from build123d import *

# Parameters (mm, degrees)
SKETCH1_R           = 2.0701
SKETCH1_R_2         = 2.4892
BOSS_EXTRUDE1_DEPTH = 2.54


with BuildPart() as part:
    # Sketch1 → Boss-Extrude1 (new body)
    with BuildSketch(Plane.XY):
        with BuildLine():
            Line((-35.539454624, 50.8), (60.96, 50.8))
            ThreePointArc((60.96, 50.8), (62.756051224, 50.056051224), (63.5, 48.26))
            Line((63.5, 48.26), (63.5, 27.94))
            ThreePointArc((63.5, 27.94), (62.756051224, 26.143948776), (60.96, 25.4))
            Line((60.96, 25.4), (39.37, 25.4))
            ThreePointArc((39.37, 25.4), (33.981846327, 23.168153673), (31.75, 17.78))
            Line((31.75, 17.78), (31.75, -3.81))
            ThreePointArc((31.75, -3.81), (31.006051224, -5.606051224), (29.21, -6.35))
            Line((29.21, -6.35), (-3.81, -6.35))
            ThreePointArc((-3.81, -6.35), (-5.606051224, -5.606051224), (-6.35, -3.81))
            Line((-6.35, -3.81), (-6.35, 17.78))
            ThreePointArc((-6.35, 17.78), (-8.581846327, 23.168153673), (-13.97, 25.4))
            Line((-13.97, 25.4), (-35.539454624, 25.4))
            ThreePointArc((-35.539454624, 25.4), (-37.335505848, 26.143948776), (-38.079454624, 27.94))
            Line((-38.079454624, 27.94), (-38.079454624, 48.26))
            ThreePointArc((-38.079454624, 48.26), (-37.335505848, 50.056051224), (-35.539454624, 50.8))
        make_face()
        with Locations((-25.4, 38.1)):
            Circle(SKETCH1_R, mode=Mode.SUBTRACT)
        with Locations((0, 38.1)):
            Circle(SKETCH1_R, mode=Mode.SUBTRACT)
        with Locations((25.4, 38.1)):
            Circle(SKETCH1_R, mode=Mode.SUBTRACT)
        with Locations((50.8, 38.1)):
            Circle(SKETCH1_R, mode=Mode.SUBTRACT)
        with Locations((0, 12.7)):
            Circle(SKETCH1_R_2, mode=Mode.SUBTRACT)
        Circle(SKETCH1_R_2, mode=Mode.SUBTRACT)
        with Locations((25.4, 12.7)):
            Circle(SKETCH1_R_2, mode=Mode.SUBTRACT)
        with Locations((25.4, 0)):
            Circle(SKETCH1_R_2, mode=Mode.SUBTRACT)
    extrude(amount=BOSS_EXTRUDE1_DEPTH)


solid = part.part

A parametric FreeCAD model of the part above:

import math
import FreeCAD as App
import Part
import Sketcher

V = App.Vector
Q = App.Units.Quantity

doc = App.newDocument("Part")
body = doc.addObject("PartDesign::Body", "Body")

sketch1 = doc.addObject("Sketcher::SketchObject", "Sketch")
body.addObject(sketch1)
sketch1.AttachmentSupport = (doc.XY_Plane, [""])
sketch1.MapMode = "FlatFace"
sketch1.addGeometry(Part.LineSegment(V(60.96, 50.8, 0), V(-35.539455, 50.8, 0)), False)
sketch1.addGeometry(Part.ArcOfCircle(Part.Circle(V(-35.539455, 48.26, 0), V(0, 0, 1), 2.54), math.radians(90), math.radians(180)), False)
sketch1.addGeometry(Part.LineSegment(V(-38.079455, 48.26, 0), V(-38.079455, 27.94, 0)), False)
sketch1.addGeometry(Part.ArcOfCircle(Part.Circle(V(-35.539455, 27.94, 0), V(0, 0, 1), 2.54), math.radians(-180), math.radians(-90)), False)
sketch1.addGeometry(Part.LineSegment(V(-35.539455, 25.4, 0), V(-13.97, 25.4, 0)), False)
sketch1.addGeometry(Part.ArcOfCircle(Part.Circle(V(-13.97, 17.78, 0), V(0, 0, 1), 7.62), math.radians(0), math.radians(90)), False)
sketch1.addGeometry(Part.LineSegment(V(-6.35, 17.78, 0), V(-6.35, -3.81, 0)), False)
sketch1.addGeometry(Part.ArcOfCircle(Part.Circle(V(-3.81, -3.81, 0), V(0, 0, 1), 2.54), math.radians(-180), math.radians(-90)), False)
sketch1.addGeometry(Part.LineSegment(V(-3.81, -6.35, 0), V(29.21, -6.35, 0)), False)
sketch1.addGeometry(Part.ArcOfCircle(Part.Circle(V(29.21, -3.81, 0), V(0, 0, 1), 2.54), math.radians(-90), math.radians(0)), False)
sketch1.addGeometry(Part.LineSegment(V(31.75, -3.81, 0), V(31.75, 17.78, 0)), False)
sketch1.addGeometry(Part.ArcOfCircle(Part.Circle(V(39.37, 17.78, 0), V(0, 0, 1), 7.62), math.radians(90), math.radians(180)), False)
sketch1.addGeometry(Part.LineSegment(V(39.37, 25.4, 0), V(60.96, 25.4, 0)), False)
sketch1.addGeometry(Part.ArcOfCircle(Part.Circle(V(60.96, 27.94, 0), V(0, 0, 1), 2.54), math.radians(-90), math.radians(0)), False)
sketch1.addGeometry(Part.LineSegment(V(63.5, 27.94, 0), V(63.5, 48.26, 0)), False)
sketch1.addGeometry(Part.ArcOfCircle(Part.Circle(V(60.96, 48.26, 0), V(0, 0, 1), 2.54), math.radians(0), math.radians(90)), False)
sketch1.addGeometry(Part.Circle(V(25.4, 0, 0), V(0, 0, 1), 2.4892), False)
sketch1.addGeometry(Part.Circle(V(25.4, 12.7, 0), V(0, 0, 1), 2.4892), False)
sketch1.addGeometry(Part.Circle(V(0, 0, 0), V(0, 0, 1), 2.4892), False)
sketch1.addGeometry(Part.Circle(V(0, 12.7, 0), V(0, 0, 1), 2.4892), False)
sketch1.addGeometry(Part.Circle(V(50.8, 38.1, 0), V(0, 0, 1), 2.0701), False)
sketch1.addGeometry(Part.Circle(V(25.4, 38.1, 0), V(0, 0, 1), 2.0701), False)
sketch1.addGeometry(Part.Circle(V(0, 38.1, 0), V(0, 0, 1), 2.0701), False)
sketch1.addGeometry(Part.Circle(V(-25.4, 38.1, 0), V(0, 0, 1), 2.0701), False)
sketch1.addConstraint(Sketcher.Constraint("Tangent", 0, 2, 1, 1))
sketch1.addConstraint(Sketcher.Constraint("Tangent", 1, 2, 2, 1))
sketch1.addConstraint(Sketcher.Constraint("Tangent", 2, 2, 3, 1))
sketch1.addConstraint(Sketcher.Constraint("Tangent", 3, 2, 4, 1))
sketch1.addConstraint(Sketcher.Constraint("Tangent", 4, 2, 5, 2))
sketch1.addConstraint(Sketcher.Constraint("Tangent", 5, 1, 6, 1))
sketch1.addConstraint(Sketcher.Constraint("Tangent", 6, 2, 7, 1))
sketch1.addConstraint(Sketcher.Constraint("Tangent", 7, 2, 8, 1))
sketch1.addConstraint(Sketcher.Constraint("Tangent", 8, 2, 9, 1))
sketch1.addConstraint(Sketcher.Constraint("Tangent", 9, 2, 10, 1))
sketch1.addConstraint(Sketcher.Constraint("Tangent", 10, 2, 11, 2))
sketch1.addConstraint(Sketcher.Constraint("Tangent", 11, 1, 12, 1))
sketch1.addConstraint(Sketcher.Constraint("Tangent", 12, 2, 13, 1))
sketch1.addConstraint(Sketcher.Constraint("Tangent", 13, 2, 14, 1))
sketch1.addConstraint(Sketcher.Constraint("Tangent", 14, 2, 15, 1))
sketch1.addConstraint(Sketcher.Constraint("Tangent", 15, 2, 0, 1))
sketch1.addConstraint(Sketcher.Constraint("Horizontal", 0))
sketch1.addConstraint(Sketcher.Constraint("Vertical", 2))
sketch1.addConstraint(Sketcher.Constraint("Horizontal", 4))
sketch1.addConstraint(Sketcher.Constraint("Vertical", 6))
sketch1.addConstraint(Sketcher.Constraint("Horizontal", 8))
sketch1.addConstraint(Sketcher.Constraint("Vertical", 10))
sketch1.addConstraint(Sketcher.Constraint("Horizontal", 12))
sketch1.addConstraint(Sketcher.Constraint("Vertical", 14))
sketch1.addConstraint(Sketcher.Constraint("Coincident", 18, 3, -1, 1))
sketch1.addConstraint(Sketcher.Constraint("Equal", 1, 3))
sketch1.addConstraint(Sketcher.Constraint("Equal", 3, 7))
sketch1.addConstraint(Sketcher.Constraint("Equal", 7, 9))
sketch1.addConstraint(Sketcher.Constraint("Equal", 5, 11))
sketch1.addConstraint(Sketcher.Constraint("Equal", 9, 13))
sketch1.addConstraint(Sketcher.Constraint("Equal", 13, 15))
sketch1.addConstraint(Sketcher.Constraint("Equal", 16, 17))
sketch1.addConstraint(Sketcher.Constraint("Equal", 17, 18))
sketch1.addConstraint(Sketcher.Constraint("Equal", 18, 19))
sketch1.addConstraint(Sketcher.Constraint("Equal", 20, 21))
sketch1.addConstraint(Sketcher.Constraint("Equal", 21, 22))
sketch1.addConstraint(Sketcher.Constraint("Equal", 22, 23))
sketch1.addConstraint(Sketcher.Constraint("Symmetric", 21, 3, 23, 3, -2))
sketch1.addConstraint(Sketcher.Constraint("PointOnObject", 16, 3, -1))
sketch1.addConstraint(Sketcher.Constraint("PointOnObject", 19, 3, -2))
sketch1.addConstraint(Sketcher.Constraint("PointOnObject", 22, 3, -2))
sketch1.addConstraint(Sketcher.Constraint("Horizontal", 5, 3, 11, 3))
sketch1.addConstraint(Sketcher.Constraint("Horizontal", 17, 3, 19, 3))
sketch1.addConstraint(Sketcher.Constraint("Horizontal", 20, 3, 21, 3))
sketch1.addConstraint(Sketcher.Constraint("Horizontal", 21, 3, 22, 3))
sketch1.addConstraint(Sketcher.Constraint("Vertical", 16, 3, 17, 3))
sketch1.addConstraint(Sketcher.Constraint("Vertical", 17, 3, 21, 3))
sketch1.addConstraint(Sketcher.Constraint("Equal", 12, 6))
sketch1.addConstraint(Sketcher.Constraint("Radius", 1, Q("0.1 in")))
sketch1.addConstraint(Sketcher.Constraint("Radius", 5, Q("0.3 in")))
sketch1.addConstraint(Sketcher.Constraint("Diameter", 16, Q("0.196 in")))
sketch1.addConstraint(Sketcher.Constraint("Diameter", 20, Q("0.163 in")))
sketch1.addConstraint(Sketcher.Constraint("DistanceX", 8, 1, 8, 2, Q("1.3 in")))
sketch1.addConstraint(Sketcher.Constraint("DistanceY", 2, 2, 2, 1, Q("0.8 in")))
sketch1.addConstraint(Sketcher.Constraint("DistanceX", -1, 1, 16, 3, Q("1 in")))
sketch1.addConstraint(Sketcher.Constraint("DistanceX", -1, 1, 20, 3, Q("2 in")))
sketch1.addConstraint(Sketcher.Constraint("DistanceY", -1, 1, 0, 2, Q("2 in")))
sketch1.addConstraint(Sketcher.Constraint("DistanceY", 17, 3, 20, 3, Q("1 in")))
sketch1.addConstraint(Sketcher.Constraint("DistanceX", 12, 1, 12, 2, Q("0.85 in")))
sketch1.addConstraint(Sketcher.Constraint("DistanceX", -1, 1, 13, 3, Q("2.4 in")))
sketch1.addConstraint(Sketcher.Constraint("DistanceY", -1, 1, 17, 3, Q("0.5 in")))
sketch1.addConstraint(Sketcher.Constraint("DistanceX", 0, 2, 0, 1, Q("96.499455 mm")))
pad1 = doc.addObject("PartDesign::Pad", "Pad")
body.addObject(pad1)
pad1.Profile = sketch1
pad1.Length = Q("0.1 in")

doc.recompute()
